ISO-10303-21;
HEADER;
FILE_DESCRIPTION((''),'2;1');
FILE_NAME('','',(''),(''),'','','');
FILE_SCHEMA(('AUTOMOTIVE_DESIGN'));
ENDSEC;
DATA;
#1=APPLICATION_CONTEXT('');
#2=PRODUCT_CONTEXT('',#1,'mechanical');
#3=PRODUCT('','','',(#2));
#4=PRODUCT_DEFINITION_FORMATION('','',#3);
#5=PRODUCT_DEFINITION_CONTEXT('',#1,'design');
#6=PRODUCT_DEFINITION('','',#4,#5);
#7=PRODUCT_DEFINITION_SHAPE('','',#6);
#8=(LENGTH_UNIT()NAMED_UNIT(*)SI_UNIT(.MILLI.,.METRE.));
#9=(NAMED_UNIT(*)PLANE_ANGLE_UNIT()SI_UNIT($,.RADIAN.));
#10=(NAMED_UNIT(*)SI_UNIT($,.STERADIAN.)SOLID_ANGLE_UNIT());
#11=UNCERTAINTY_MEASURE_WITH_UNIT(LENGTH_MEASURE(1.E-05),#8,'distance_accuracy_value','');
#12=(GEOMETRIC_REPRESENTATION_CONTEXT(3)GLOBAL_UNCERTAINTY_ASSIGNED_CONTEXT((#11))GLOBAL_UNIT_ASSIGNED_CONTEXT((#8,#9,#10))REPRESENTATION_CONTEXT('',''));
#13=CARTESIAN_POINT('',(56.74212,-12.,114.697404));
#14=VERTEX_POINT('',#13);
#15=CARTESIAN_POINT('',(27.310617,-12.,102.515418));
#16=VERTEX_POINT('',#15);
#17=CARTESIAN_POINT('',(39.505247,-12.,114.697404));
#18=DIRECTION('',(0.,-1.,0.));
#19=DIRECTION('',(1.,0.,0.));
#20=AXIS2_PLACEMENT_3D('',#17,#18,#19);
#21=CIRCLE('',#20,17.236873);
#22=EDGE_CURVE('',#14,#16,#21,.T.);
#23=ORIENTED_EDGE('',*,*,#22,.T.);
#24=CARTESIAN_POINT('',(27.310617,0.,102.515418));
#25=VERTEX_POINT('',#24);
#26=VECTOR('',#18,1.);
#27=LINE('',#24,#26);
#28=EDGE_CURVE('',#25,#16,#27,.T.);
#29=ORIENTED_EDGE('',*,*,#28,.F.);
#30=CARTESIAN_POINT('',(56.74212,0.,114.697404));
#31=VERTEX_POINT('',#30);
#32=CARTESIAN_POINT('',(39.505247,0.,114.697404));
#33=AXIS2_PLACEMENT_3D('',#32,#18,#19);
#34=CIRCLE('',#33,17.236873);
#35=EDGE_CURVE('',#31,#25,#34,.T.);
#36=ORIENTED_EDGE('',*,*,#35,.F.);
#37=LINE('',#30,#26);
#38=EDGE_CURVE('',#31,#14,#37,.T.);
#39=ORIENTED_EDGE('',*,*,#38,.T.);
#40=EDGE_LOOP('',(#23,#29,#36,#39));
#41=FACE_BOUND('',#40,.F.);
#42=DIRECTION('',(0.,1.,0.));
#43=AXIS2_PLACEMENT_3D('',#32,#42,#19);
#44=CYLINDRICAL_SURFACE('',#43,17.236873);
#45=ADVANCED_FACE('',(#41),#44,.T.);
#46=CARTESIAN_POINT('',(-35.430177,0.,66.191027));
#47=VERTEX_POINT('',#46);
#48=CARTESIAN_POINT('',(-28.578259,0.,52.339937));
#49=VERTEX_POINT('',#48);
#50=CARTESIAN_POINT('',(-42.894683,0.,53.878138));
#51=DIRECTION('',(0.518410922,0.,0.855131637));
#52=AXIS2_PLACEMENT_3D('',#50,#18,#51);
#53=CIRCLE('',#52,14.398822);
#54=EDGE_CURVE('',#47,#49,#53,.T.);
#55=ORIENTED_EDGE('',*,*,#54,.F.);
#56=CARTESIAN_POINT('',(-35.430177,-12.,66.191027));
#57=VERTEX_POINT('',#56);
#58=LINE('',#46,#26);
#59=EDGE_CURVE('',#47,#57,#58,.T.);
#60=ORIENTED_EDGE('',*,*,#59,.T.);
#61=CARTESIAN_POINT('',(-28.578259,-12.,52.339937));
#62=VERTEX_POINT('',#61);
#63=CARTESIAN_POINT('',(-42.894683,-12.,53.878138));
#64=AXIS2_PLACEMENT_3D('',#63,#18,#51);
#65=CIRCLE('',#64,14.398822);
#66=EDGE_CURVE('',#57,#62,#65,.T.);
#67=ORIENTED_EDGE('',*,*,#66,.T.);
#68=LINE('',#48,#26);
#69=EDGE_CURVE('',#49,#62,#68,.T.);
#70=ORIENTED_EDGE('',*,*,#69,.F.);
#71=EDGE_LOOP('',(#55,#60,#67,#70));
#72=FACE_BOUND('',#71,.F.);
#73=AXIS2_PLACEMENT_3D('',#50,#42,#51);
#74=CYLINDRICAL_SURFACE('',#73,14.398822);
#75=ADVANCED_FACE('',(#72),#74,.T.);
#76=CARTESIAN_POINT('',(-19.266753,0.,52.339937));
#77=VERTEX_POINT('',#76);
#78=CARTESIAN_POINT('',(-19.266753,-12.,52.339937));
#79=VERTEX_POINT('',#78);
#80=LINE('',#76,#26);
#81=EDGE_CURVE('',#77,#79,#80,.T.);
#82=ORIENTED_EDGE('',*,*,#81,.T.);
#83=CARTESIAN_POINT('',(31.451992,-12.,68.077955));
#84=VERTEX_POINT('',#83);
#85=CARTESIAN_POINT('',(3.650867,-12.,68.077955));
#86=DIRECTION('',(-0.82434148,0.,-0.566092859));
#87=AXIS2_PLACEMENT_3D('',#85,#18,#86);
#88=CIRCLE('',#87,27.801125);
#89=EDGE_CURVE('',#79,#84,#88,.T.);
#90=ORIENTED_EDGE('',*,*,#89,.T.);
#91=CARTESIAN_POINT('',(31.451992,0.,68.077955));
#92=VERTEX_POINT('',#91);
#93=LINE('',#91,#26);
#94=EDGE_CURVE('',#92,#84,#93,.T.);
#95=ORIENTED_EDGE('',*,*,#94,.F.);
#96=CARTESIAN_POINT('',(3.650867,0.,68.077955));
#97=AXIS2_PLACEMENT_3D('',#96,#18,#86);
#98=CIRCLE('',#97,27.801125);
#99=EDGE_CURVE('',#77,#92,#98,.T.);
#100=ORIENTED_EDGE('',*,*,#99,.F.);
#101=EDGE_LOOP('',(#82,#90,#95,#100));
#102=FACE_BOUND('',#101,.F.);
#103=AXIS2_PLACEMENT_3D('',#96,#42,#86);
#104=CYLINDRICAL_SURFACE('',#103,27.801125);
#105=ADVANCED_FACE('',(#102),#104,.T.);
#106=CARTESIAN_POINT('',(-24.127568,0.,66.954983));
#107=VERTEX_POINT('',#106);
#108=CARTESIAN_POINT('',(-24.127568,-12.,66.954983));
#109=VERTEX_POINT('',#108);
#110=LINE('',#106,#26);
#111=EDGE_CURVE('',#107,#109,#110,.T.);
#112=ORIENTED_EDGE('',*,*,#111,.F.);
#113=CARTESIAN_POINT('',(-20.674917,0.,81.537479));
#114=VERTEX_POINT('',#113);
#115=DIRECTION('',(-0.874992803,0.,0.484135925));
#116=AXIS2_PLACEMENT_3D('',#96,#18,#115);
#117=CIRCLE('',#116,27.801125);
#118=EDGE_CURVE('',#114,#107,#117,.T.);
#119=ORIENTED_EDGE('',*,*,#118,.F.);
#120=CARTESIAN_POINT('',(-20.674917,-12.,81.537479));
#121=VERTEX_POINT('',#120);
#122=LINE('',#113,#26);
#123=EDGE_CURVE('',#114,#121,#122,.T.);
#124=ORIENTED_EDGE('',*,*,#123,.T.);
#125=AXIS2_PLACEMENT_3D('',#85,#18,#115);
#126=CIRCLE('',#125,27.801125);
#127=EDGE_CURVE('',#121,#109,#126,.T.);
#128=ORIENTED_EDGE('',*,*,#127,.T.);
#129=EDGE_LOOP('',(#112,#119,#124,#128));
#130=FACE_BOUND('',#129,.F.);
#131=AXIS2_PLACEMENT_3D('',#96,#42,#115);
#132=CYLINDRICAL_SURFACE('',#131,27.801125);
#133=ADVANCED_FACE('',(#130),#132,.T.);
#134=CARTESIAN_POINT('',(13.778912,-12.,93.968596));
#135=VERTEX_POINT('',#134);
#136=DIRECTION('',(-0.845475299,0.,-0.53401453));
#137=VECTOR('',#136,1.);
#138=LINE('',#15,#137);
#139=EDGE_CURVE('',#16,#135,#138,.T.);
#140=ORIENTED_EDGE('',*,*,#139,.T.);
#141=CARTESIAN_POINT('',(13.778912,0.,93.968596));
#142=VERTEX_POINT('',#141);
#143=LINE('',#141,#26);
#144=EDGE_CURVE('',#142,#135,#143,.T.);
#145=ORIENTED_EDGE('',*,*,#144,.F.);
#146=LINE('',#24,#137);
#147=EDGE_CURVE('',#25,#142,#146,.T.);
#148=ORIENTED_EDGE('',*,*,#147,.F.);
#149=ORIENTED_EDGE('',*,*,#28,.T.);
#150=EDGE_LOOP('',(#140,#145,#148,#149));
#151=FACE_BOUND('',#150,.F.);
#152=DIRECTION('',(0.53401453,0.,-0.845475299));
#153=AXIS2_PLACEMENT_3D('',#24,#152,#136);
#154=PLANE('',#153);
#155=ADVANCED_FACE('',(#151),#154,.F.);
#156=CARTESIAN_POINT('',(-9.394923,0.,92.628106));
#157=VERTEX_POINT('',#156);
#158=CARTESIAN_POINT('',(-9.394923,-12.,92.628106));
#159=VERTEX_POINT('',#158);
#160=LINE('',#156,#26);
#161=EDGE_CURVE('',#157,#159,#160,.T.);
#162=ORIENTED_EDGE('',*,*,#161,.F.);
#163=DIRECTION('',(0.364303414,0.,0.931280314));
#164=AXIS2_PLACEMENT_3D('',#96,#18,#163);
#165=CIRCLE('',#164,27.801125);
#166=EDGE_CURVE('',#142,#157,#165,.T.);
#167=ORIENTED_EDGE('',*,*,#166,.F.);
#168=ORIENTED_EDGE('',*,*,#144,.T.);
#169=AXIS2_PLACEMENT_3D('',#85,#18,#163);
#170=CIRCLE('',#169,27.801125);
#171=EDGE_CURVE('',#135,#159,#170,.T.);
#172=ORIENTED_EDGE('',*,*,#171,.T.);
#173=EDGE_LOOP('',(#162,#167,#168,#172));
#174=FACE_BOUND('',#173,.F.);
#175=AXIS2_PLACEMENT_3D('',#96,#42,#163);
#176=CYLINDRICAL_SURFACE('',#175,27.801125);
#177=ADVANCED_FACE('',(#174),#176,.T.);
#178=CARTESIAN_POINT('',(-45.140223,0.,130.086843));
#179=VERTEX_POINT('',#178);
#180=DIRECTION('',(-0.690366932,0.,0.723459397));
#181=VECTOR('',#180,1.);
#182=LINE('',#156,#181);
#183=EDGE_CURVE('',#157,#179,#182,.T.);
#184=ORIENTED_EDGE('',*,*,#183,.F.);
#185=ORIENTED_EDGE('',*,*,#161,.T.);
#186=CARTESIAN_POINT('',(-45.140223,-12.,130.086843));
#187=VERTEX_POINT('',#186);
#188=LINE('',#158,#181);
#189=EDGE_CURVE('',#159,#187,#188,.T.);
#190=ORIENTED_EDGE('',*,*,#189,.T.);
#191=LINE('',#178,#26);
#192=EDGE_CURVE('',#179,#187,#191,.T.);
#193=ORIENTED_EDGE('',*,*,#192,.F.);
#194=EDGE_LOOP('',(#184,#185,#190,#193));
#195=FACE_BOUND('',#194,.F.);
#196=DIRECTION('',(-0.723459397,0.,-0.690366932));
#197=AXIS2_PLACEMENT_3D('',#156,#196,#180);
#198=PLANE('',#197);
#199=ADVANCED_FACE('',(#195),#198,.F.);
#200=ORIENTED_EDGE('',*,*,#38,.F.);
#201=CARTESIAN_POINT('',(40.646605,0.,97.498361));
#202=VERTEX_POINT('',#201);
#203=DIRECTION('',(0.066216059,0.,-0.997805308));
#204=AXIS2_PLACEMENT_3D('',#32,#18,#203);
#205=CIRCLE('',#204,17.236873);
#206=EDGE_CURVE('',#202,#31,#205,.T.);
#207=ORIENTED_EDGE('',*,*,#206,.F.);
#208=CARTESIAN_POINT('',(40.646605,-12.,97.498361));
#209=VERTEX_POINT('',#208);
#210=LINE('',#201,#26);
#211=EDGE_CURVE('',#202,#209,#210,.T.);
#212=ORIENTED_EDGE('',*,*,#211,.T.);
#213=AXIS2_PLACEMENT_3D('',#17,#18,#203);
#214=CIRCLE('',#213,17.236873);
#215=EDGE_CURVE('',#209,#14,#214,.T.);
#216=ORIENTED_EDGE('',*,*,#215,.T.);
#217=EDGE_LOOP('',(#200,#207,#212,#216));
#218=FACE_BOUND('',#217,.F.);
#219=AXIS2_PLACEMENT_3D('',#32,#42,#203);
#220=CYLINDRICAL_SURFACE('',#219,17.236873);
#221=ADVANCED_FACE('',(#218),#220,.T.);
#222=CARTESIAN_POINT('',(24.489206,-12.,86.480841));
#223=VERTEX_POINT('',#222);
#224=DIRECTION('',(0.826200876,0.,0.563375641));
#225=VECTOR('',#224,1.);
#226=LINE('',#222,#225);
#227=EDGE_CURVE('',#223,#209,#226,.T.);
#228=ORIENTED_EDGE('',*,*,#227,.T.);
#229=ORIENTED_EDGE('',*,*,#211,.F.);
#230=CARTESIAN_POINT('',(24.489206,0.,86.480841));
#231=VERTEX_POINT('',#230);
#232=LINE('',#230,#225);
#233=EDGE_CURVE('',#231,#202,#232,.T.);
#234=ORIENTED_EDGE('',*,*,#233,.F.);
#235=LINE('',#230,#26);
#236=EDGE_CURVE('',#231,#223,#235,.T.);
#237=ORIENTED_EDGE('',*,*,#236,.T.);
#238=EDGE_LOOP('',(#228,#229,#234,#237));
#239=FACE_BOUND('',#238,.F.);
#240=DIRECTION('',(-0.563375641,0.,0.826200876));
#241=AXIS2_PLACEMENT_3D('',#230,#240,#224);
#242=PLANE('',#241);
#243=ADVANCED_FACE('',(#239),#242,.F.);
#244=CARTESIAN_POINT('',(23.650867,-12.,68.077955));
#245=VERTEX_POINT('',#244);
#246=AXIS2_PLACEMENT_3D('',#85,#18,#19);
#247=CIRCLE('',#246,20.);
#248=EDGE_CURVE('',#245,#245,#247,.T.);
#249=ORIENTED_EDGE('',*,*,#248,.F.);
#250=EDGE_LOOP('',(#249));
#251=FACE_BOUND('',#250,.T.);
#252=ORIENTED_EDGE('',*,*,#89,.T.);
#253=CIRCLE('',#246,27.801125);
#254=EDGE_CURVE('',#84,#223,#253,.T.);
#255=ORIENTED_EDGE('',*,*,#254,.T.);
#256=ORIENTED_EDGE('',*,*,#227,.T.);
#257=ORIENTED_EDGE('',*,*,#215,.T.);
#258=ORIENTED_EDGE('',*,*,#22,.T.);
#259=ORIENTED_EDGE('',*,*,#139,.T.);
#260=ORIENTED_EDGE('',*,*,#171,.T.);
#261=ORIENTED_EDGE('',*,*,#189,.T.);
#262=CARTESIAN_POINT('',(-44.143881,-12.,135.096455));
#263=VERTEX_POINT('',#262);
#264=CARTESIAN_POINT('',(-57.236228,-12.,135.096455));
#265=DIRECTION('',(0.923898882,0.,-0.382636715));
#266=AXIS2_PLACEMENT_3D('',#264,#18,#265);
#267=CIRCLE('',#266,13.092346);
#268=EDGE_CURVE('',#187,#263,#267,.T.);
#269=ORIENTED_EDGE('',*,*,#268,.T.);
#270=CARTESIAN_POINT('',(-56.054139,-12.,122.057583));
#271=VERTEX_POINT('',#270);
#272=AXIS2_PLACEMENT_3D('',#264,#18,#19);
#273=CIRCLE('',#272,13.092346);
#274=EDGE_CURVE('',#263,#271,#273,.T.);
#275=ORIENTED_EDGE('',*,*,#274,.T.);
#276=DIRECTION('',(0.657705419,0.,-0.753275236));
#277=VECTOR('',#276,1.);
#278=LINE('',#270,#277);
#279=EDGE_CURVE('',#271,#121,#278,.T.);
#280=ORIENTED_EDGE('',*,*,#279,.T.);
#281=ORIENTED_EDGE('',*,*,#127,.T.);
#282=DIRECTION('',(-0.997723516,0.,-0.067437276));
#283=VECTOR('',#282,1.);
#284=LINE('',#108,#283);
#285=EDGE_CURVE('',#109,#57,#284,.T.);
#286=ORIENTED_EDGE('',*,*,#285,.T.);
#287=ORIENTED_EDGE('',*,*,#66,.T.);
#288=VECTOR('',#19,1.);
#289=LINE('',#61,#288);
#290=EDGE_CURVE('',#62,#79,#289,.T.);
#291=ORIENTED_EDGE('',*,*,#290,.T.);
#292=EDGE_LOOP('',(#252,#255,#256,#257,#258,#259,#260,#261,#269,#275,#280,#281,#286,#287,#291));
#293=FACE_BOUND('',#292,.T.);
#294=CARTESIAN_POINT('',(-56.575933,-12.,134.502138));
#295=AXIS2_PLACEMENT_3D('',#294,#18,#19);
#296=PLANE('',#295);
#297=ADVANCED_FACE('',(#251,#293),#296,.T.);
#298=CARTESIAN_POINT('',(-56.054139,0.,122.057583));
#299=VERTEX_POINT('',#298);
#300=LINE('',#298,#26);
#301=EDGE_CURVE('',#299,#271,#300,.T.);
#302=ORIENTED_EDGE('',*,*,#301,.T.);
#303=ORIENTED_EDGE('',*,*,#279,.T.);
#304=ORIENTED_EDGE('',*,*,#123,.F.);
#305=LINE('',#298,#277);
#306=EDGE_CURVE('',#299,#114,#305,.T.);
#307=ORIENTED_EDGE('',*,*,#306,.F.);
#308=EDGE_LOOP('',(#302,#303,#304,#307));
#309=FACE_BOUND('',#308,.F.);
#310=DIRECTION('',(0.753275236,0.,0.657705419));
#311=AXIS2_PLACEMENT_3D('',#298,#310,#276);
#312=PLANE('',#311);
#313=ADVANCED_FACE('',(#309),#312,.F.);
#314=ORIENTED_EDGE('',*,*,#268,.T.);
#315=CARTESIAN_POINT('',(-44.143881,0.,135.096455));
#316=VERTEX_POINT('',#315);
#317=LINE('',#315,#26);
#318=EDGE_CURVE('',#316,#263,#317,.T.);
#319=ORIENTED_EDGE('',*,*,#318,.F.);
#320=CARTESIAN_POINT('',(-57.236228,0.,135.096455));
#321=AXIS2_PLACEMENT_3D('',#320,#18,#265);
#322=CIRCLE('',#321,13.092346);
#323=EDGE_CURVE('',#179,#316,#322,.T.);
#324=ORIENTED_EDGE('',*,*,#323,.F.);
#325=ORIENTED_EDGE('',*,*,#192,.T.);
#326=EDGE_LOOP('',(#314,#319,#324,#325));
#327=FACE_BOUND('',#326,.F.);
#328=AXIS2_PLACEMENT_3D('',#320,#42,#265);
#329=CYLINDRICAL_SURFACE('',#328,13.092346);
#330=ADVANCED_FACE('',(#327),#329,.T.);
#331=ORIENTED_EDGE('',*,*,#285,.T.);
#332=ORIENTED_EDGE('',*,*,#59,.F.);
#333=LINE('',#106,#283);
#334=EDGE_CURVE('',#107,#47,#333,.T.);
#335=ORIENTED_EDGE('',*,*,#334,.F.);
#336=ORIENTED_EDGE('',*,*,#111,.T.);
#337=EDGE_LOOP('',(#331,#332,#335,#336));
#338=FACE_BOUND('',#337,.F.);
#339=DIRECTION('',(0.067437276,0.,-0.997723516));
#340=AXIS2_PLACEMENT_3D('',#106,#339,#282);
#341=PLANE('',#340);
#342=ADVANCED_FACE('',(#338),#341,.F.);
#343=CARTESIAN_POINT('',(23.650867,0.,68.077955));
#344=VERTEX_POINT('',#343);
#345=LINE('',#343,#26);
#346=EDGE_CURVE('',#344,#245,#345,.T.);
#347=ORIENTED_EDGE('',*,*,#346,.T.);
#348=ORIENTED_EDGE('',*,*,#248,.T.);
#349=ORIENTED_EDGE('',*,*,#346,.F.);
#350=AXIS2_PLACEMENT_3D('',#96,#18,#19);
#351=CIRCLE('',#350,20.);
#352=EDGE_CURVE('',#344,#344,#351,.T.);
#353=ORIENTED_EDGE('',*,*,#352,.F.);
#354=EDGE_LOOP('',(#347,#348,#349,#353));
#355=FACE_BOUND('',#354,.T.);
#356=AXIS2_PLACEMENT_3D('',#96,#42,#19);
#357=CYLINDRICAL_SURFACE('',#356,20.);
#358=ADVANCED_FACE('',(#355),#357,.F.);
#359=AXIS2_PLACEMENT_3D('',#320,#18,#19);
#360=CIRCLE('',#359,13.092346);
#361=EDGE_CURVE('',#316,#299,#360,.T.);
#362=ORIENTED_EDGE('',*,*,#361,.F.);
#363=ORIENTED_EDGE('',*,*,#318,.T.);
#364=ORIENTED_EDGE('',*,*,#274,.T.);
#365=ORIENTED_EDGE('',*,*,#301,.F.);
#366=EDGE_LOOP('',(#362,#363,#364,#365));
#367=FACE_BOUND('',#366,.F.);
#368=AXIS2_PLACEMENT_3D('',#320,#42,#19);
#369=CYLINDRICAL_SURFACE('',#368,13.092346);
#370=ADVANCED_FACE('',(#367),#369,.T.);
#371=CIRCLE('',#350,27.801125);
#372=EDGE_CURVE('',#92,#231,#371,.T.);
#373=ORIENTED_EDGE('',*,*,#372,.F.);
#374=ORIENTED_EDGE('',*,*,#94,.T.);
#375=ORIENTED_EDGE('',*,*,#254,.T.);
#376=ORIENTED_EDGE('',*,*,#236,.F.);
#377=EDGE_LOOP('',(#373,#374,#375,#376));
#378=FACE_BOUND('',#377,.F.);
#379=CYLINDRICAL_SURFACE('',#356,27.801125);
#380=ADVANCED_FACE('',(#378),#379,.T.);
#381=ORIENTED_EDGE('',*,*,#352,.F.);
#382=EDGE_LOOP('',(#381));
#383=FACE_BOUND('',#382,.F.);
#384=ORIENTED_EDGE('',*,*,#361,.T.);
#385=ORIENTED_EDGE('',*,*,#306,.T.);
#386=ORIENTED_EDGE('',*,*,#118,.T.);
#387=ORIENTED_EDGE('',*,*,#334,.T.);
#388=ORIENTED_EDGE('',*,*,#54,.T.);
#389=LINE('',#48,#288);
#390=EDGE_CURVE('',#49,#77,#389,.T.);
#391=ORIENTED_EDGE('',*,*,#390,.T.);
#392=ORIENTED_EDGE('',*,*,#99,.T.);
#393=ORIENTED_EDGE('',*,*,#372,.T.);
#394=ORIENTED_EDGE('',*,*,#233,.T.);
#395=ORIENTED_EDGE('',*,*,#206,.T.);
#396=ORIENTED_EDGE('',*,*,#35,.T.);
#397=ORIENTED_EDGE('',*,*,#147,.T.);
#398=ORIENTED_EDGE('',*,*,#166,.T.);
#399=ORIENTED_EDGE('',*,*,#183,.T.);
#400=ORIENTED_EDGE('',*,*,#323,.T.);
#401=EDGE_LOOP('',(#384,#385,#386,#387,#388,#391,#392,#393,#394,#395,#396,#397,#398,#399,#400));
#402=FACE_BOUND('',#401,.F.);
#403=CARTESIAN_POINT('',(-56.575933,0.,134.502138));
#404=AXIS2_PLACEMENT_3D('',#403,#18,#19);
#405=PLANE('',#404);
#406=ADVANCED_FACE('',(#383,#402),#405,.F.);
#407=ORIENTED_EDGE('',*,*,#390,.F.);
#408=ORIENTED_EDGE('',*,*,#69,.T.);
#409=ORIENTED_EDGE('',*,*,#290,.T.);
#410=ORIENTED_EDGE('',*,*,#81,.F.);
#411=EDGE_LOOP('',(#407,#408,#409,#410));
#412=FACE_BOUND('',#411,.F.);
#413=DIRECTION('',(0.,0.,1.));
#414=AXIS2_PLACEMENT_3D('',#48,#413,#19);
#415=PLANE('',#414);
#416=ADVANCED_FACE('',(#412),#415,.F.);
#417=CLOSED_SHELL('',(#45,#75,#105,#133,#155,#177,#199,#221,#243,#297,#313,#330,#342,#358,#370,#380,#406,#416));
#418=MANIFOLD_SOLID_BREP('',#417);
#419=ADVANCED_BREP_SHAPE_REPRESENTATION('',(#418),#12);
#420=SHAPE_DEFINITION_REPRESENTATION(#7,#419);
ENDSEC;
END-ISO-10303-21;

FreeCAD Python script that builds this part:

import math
import FreeCAD as App
import Part
import Sketcher

V = App.Vector

doc = App.newDocument("Part")
body = doc.addObject("PartDesign::Body", "Body")

# Sketch on XZ plane
sketch1 = body.newObject("Sketcher::SketchObject", "Sketch")
sketch1.AttachmentSupport = (doc.getObject("XZ_Plane"), [""])
sketch1.MapMode = "FlatFace"
sketch1.addGeometry(Part.LineSegment(V(-24.127568, 66.954983, 0), V(-35.430177, 66.191027, 0)), False)
sketch1.addGeometry(Part.ArcOfCircle(Part.Circle(V(-42.894683, 53.878138, 0), V(0, 0, 1), 14.398822), math.radians(58.77428), math.radians(353.867489)), False)
sketch1.addGeometry(Part.LineSegment(V(-28.578259, 52.339937, 0), V(-19.266753, 52.339937, 0)), False)
sketch1.addGeometry(Part.ArcOfCircle(Part.Circle(V(3.650867, 68.077955, 0), V(0, 0, 1), 27.801125), math.radians(-145.521784), math.radians(0)), False)
sketch1.addGeometry(Part.ArcOfCircle(Part.Circle(V(3.650867, 68.077955, 0), V(0, 0, 1), 27.801125), math.radians(0), math.radians(41.448569)), False)
sketch1.addGeometry(Part.LineSegment(V(24.489206, 86.480841, 0), V(40.646605, 97.498361, 0)), False)
sketch1.addGeometry(Part.ArcOfCircle(Part.Circle(V(39.505247, 114.697404, 0), V(0, 0, 1), 17.236873), math.radians(-86.203321), math.radians(0)), False)
sketch1.addGeometry(Part.ArcOfCircle(Part.Circle(V(39.505247, 114.697404, 0), V(0, 0, 1), 17.236873), math.radians(0), math.radians(224.970281)), False)
sketch1.addGeometry(Part.LineSegment(V(27.310617, 102.515418, 0), V(13.778912, 93.968596, 0)), False)
sketch1.addGeometry(Part.ArcOfCircle(Part.Circle(V(3.650867, 68.077955, 0), V(0, 0, 1), 27.801125), math.radians(68.63528), math.radians(117.985887)), False)
sketch1.addGeometry(Part.LineSegment(V(-9.394923, 92.628106, 0), V(-45.140223, 130.086843, 0)), False)
sketch1.addGeometry(Part.ArcOfCircle(Part.Circle(V(-57.236228, 135.096455, 0), V(0, 0, 1), 13.092346), math.radians(-22.497103), math.radians(0)), False)
sketch1.addGeometry(Part.ArcOfCircle(Part.Circle(V(-57.236228, 135.096455, 0), V(0, 0, 1), 13.092346), math.radians(0), math.radians(275.180206)), False)
sketch1.addGeometry(Part.LineSegment(V(-56.054139, 122.057583, 0), V(-20.674917, 81.537479, 0)), False)
sketch1.addGeometry(Part.ArcOfCircle(Part.Circle(V(3.650867, 68.077955, 0), V(0, 0, 1), 27.801125), math.radians(151.044124), math.radians(182.314982)), False)
sketch1.addGeometry(Part.Circle(V(3.650867, 68.077955, 0), V(0, 0, 1), 20), False)
sketch1.addConstraint(Sketcher.Constraint("Coincident", 0, 2, 1, 1))
sketch1.addConstraint(Sketcher.Constraint("Coincident", 1, 2, 2, 1))
sketch1.addConstraint(Sketcher.Constraint("Coincident", 2, 2, 3, 1))
sketch1.addConstraint(Sketcher.Constraint("Tangent", 3, 2, 4, 1))
sketch1.addConstraint(Sketcher.Constraint("Coincident", 4, 2, 5, 1))
sketch1.addConstraint(Sketcher.Constraint("Coincident", 5, 2, 6, 1))
sketch1.addConstraint(Sketcher.Constraint("Tangent", 6, 2, 7, 1))
sketch1.addConstraint(Sketcher.Constraint("Coincident", 7, 2, 8, 1))
sketch1.addConstraint(Sketcher.Constraint("Coincident", 8, 2, 9, 1))
sketch1.addConstraint(Sketcher.Constraint("Coincident", 9, 2, 10, 1))
sketch1.addConstraint(Sketcher.Constraint("Coincident", 10, 2, 11, 1))
sketch1.addConstraint(Sketcher.Constraint("Tangent", 11, 2, 12, 1))
sketch1.addConstraint(Sketcher.Constraint("Coincident", 12, 2, 13, 1))
sketch1.addConstraint(Sketcher.Constraint("Coincident", 13, 2, 14, 1))
sketch1.addConstraint(Sketcher.Constraint("Coincident", 14, 2, 0, 1))
sketch1.addConstraint(Sketcher.Constraint("Horizontal", 2))
sketch1.addConstraint(Sketcher.Constraint("Coincident", 9, 3, 3, 3))
sketch1.addConstraint(Sketcher.Constraint("Coincident", 14, 3, 3, 3))
sketch1.addConstraint(Sketcher.Constraint("Coincident", 15, 3, 3, 3))
sketch1.addConstraint(Sketcher.Constraint("Equal", 3, 4))
sketch1.addConstraint(Sketcher.Constraint("Equal", 6, 7))
sketch1.addConstraint(Sketcher.Constraint("Equal", 4, 9))
sketch1.addConstraint(Sketcher.Constraint("Equal", 11, 12))
sketch1.addConstraint(Sketcher.Constraint("Equal", 9, 14))
sketch1.addConstraint(Sketcher.Constraint("Horizontal", 15, 3, 3, 2))
sketch1.addConstraint(Sketcher.Constraint("Horizontal", 7, 3, 6, 2))
sketch1.addConstraint(Sketcher.Constraint("Horizontal", 12, 3, 11, 2))
sketch1.addConstraint(Sketcher.Constraint("Diameter", 15, 40.0))
sketch1.addConstraint(Sketcher.Constraint("Radius", 1, 14.398822))
sketch1.addConstraint(Sketcher.Constraint("Radius", 3, 27.801125))
sketch1.addConstraint(Sketcher.Constraint("Radius", 6, 17.236873))
sketch1.addConstraint(Sketcher.Constraint("Radius", 11, 13.092346))
sketch1.addConstraint(Sketcher.Constraint("DistanceY", 3, 3, 11, 3, 67.0185))
sketch1.addConstraint(Sketcher.Constraint("DistanceY", 1, 2, 1, 3, 1.538201))
sketch1.addConstraint(Sketcher.Constraint("DistanceX", 4, 2, 5, 2, 16.157398))
sketch1.addConstraint(Sketcher.Constraint("DistanceX", 10, 2, 9, 2, 35.7453))
sketch1.addConstraint(Sketcher.Constraint("Distance", 5, 19.556259))
sketch1.addConstraint(Sketcher.Constraint("Distance", 8, 16.004849))
sketch1.addConstraint(Sketcher.Constraint("Distance", 10, 51.777248))
sketch1.addConstraint(Sketcher.Constraint("DistanceX", 2, 1, 2, 2, 9.311505))
sketch1.addConstraint(Sketcher.Constraint("DistanceY", -1, 1, 1, 3, 53.878138))
sketch1.addConstraint(Sketcher.Constraint("DistanceX", 1, 2, -1, 1, 28.578259))
sketch1.addConstraint(Sketcher.Constraint("DistanceY", -1, 1, 4, 2, 86.480841))
sketch1.addConstraint(Sketcher.Constraint("DistanceX", -1, 1, 6, 2, 56.74212))
sketch1.addConstraint(Sketcher.Constraint("DistanceX", 11, 2, -1, 1, 44.143881))
sketch1.addConstraint(Sketcher.Constraint("DistanceX", 12, 2, -1, 1, 56.054139))
sketch1.addConstraint(Sketcher.Constraint("DistanceY", -1, 1, 13, 2, 81.537479))
sketch1.addConstraint(Sketcher.Constraint("DistanceX", 14, 2, -1, 1, 24.127568))
sketch1.addConstraint(Sketcher.Constraint("DistanceX", 1, 3, 3, 3, 46.545551))
sketch1.addConstraint(Sketcher.Constraint("DistanceY", 1, 3, 0, 2, 12.312888))
sketch1.addConstraint(Sketcher.Constraint("DistanceX", 7, 2, 5, 2, 13.335988))
pad1 = body.newObject("PartDesign::Pad", "Pad")
pad1.Profile = sketch1
pad1.Length = 12

doc.recompute()
